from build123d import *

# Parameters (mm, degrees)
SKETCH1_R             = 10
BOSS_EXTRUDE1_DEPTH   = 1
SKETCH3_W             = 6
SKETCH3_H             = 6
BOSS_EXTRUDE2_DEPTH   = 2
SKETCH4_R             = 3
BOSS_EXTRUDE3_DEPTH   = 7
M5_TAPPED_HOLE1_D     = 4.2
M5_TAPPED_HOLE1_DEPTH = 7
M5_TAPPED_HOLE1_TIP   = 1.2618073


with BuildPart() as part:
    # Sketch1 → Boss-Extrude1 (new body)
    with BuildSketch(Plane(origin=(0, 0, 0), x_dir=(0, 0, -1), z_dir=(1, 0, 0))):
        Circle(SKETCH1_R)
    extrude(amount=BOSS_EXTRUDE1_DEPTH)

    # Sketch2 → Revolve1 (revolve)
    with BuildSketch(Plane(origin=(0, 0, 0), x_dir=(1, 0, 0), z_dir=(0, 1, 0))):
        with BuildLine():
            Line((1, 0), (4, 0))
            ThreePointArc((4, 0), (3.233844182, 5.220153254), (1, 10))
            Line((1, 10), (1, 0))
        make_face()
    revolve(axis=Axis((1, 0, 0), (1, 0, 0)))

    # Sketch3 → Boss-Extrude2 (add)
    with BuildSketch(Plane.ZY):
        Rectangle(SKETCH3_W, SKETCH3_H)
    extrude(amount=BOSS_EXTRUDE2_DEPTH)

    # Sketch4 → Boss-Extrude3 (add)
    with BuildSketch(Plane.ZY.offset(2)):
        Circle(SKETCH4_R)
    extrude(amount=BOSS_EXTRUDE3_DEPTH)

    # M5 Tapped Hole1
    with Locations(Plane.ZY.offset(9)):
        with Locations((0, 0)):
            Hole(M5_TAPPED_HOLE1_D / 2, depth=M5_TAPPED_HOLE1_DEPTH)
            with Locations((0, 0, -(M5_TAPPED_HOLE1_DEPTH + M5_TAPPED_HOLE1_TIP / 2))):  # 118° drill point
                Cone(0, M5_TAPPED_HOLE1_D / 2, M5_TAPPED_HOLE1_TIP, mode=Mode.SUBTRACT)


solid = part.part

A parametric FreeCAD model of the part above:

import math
import FreeCAD as App
import Part
import Sketcher

V = App.Vector
Q = App.Units.Quantity

doc = App.newDocument("Part")
body = doc.addObject("PartDesign::Body", "Body")

# Sketch on YZ plane
sketch1 = doc.addObject("Sketcher::SketchObject", "Sketch")
body.addObject(sketch1)
sketch1.AttachmentSupport = (doc.YZ_Plane, [""])
sketch1.MapMode = "FlatFace"
sketch1.addGeometry(Part.Circle(V(0, 0, 0), V(0, 0, 1), 10), False)
sketch1.addConstraint([
    Sketcher.Constraint("Coincident", 0, 3, -1, 1),
    Sketcher.Constraint("Diameter", 0, Q("20 mm")),
])
pad1 = doc.addObject("PartDesign::Pad", "Pad")
body.addObject(pad1)
pad1.Profile = sketch1
pad1.Length = 1

# Sketch on XZ plane
sketch2 = doc.addObject("Sketcher::SketchObject", "Sketch001")
body.addObject(sketch2)
sketch2.AttachmentSupport = (doc.XZ_Plane, [""])
sketch2.MapMode = "FlatFace"
sketch2.addGeometry([
    Part.LineSegment(V(1, 0, 0), V(4, 0, 0)),
    Part.ArcOfCircle(Part.Circle(V(-14.2, 0, 0), V(0, 0, 1), 18.2), math.radians(-33), math.radians(0)),
    Part.LineSegment(V(1, -10, 0), V(1, 0, 0)),
], False)
sketch2.addConstraint([
    Sketcher.Constraint("Coincident", 0, 2, 1, 2),
    Sketcher.Constraint("Coincident", 1, 1, 2, 1),
    Sketcher.Constraint("Coincident", 2, 2, 0, 1),
    Sketcher.Constraint("Horizontal", 0),
    Sketcher.Constraint("Vertical", 2),
    Sketcher.Constraint("PointOnObject", 1, 3, -1),
    Sketcher.Constraint("PointOnObject", 0, 2, -1),
    Sketcher.Constraint("DistanceX", 0, 1, 0, 2, Q("3 mm")),
    Sketcher.Constraint("DistanceY", 2, 1, 2, 2, Q("10 mm")),
    Sketcher.Constraint("DistanceX", -1, 1, 0, 2, Q("4 mm")),
])
revolution = doc.addObject("PartDesign::Revolution", "Revolution")
body.addObject(revolution)
revolution.Profile = sketch2
revolution.ReferenceAxis = (sketch2, ["H_Axis"])
revolution.Angle = 360

# Sketch on YZ plane
sketch3 = doc.addObject("Sketcher::SketchObject", "Sketch002")
body.addObject(sketch3)
sketch3.AttachmentSupport = (doc.YZ_Plane, [""])
sketch3.MapMode = "FlatFace"
sketch3.addGeometry([
    Part.LineSegment(V(3, -3, 0), V(-3, -3, 0)),
    Part.LineSegment(V(-3, -3, 0), V(-3, 3, 0)),
    Part.LineSegment(V(-3, 3, 0), V(3, 3, 0)),
    Part.LineSegment(V(3, 3, 0), V(3, -3, 0)),
], False)
sketch3.addConstraint([
    Sketcher.Constraint("Coincident", 0, 2, 1, 1),
    Sketcher.Constraint("Coincident", 1, 2, 2, 1),
    Sketcher.Constraint("Coincident", 2, 2, 3, 1),
    Sketcher.Constraint("Coincident", 3, 2, 0, 1),
    Sketcher.Constraint("Horizontal", 0),
    Sketcher.Constraint("Vertical", 1),
    Sketcher.Constraint("Horizontal", 2),
    Sketcher.Constraint("Vertical", 3),
    Sketcher.Constraint("Symmetric", 0, 2, 2, 2, -1, 1),
    Sketcher.Constraint("Equal", 2, 1),
    Sketcher.Constraint("DistanceX", 0, 2, 0, 1, Q("6 mm")),
])
pad2 = doc.addObject("PartDesign::Pad", "Pad001")
body.addObject(pad2)
pad2.Profile = sketch3
pad2.Length = 2
pad2.Reversed = True

# Sketch on YZ plane
sketch4 = doc.addObject("Sketcher::SketchObject", "Sketch003")
body.addObject(sketch4)
sketch4.AttachmentSupport = (doc.YZ_Plane, [""])
sketch4.MapMode = "FlatFace"
sketch4.AttachmentOffset = App.Placement(V(0, 0, -2), App.Rotation())
sketch4.addGeometry(Part.Circle(V(0, 0, 0), V(0, 0, 1), 3), False)
sketch4.addConstraint([
    Sketcher.Constraint("Coincident", 0, 3, -1, 1),
    Sketcher.Constraint("Diameter", 0, Q("6 mm")),
])
pad3 = doc.addObject("PartDesign::Pad", "Pad002")
body.addObject(pad3)
pad3.Profile = sketch4
pad3.Length = 7
pad3.Reversed = True

# Sketch on YZ plane
sketch5 = doc.addObject("Sketcher::SketchObject", "Sketch004")
body.addObject(sketch5)
sketch5.AttachmentSupport = (doc.YZ_Plane, [""])
sketch5.MapMode = "FlatFace"
sketch5.AttachmentOffset = App.Placement(V(0, 0, -9), App.Rotation())
sketch5.addGeometry(Part.Circle(V(0, 0, 0), V(0, 0, 1), 2.1), False)
sketch5.addConstraint([
    Sketcher.Constraint("Coincident", 0, 3, -1, 1),
    Sketcher.Constraint("Diameter", 0, Q("4.2 mm")),
])
doc.recompute()
hole = doc.addObject("PartDesign::Hole", "Hole")
body.addObject(hole)
hole.Profile = sketch5
hole.ThreadType = "None"
hole.Diameter = 4.2
hole.DepthType = "Dimension"
hole.Depth = 7
hole.DrillPoint = "Angled"
hole.DrillPointAngle = 118
hole.Reversed = True

doc.recompute()
